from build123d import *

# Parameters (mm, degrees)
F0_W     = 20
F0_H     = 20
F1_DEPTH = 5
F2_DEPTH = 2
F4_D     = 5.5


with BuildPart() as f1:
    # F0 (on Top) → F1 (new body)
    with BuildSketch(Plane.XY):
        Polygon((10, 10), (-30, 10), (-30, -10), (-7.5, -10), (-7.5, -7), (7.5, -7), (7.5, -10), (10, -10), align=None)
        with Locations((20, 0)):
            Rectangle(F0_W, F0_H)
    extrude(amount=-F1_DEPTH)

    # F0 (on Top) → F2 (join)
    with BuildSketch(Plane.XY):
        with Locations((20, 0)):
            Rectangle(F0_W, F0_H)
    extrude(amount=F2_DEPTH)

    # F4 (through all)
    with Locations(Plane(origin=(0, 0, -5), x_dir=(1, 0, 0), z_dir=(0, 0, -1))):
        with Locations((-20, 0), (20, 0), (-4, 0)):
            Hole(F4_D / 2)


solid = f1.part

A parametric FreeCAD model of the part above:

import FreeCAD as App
import Part
import Sketcher
from FreeCAD import Vector
Q = App.Units.Quantity

doc = App.newDocument("Part")
body = doc.addObject("PartDesign::Body", "Body")

sketch1 = doc.addObject("Sketcher::SketchObject", "Sketch")
body.addObject(sketch1)
sketch1.AttachmentSupport = (doc.XY_Plane, [""])
sketch1.MapMode = "FlatFace"
sketch1.addGeometry([
    Part.LineSegment(Vector(-30, 10, 0), Vector(-30, -10, 0)),
    Part.LineSegment(Vector(-30, -10, 0), Vector(-7.5, -10, 0)),
    Part.LineSegment(Vector(-7.5, -10, 0), Vector(-7.5, -7, 0)),
    Part.LineSegment(Vector(-7.5, -7, 0), Vector(7.5, -7, 0)),
    Part.LineSegment(Vector(7.5, -7, 0), Vector(7.5, -10, 0)),
    Part.LineSegment(Vector(7.5, -10, 0), Vector(30, -10, 0)),
    Part.LineSegment(Vector(30, -10, 0), Vector(30, 10, 0)),
    Part.LineSegment(Vector(30, 10, 0), Vector(-30, 10, 0)),
], False)
sketch1.addConstraint([
    Sketcher.Constraint("Coincident", 0, 2, 1, 1),
    Sketcher.Constraint("Coincident", 1, 2, 2, 1),
    Sketcher.Constraint("Coincident", 2, 2, 3, 1),
    Sketcher.Constraint("Coincident", 3, 2, 4, 1),
    Sketcher.Constraint("Coincident", 4, 2, 5, 1),
    Sketcher.Constraint("Coincident", 5, 2, 6, 1),
    Sketcher.Constraint("Coincident", 6, 2, 7, 1),
    Sketcher.Constraint("Coincident", 7, 2, 0, 1),
    Sketcher.Constraint("Vertical", 0),
    Sketcher.Constraint("Horizontal", 1),
    Sketcher.Constraint("Vertical", 2),
    Sketcher.Constraint("Horizontal", 3),
    Sketcher.Constraint("Vertical", 4),
    Sketcher.Constraint("Horizontal", 5),
    Sketcher.Constraint("Vertical", 6),
    Sketcher.Constraint("Horizontal", 7),
    Sketcher.Constraint("Symmetric", 0, 2, 6, 2, -1, 1),
    Sketcher.Constraint("Symmetric", 1, 2, 4, 2, -2),
    Sketcher.Constraint("DistanceX", 3, 1, 3, 2, Q("15 mm")),
    Sketcher.Constraint("DistanceX", 7, 2, 7, 1, Q("60 mm")),
    Sketcher.Constraint("DistanceY", 0, 2, 0, 1, Q("20 mm")),
    Sketcher.Constraint("DistanceY", 2, 1, 2, 2, Q("3 mm")),
])
pad1 = doc.addObject("PartDesign::Pad", "Pad")
body.addObject(pad1)
pad1.Profile = sketch1
pad1.Length = 5
pad1.Reversed = True

sketch2 = doc.addObject("Sketcher::SketchObject", "Sketch001")
body.addObject(sketch2)
sketch2.AttachmentSupport = (doc.XY_Plane, [""])
sketch2.MapMode = "FlatFace"
sketch2.addGeometry([
    Part.LineSegment(Vector(10, 10, 0), Vector(10, -10, 0)),
    Part.LineSegment(Vector(10, -10, 0), Vector(30, -10, 0)),
    Part.LineSegment(Vector(30, -10, 0), Vector(30, 10, 0)),
    Part.LineSegment(Vector(30, 10, 0), Vector(10, 10, 0)),
], False)
sketch2.addConstraint([
    Sketcher.Constraint("Coincident", 0, 2, 1, 1),
    Sketcher.Constraint("Coincident", 1, 2, 2, 1),
    Sketcher.Constraint("Coincident", 2, 2, 3, 1),
    Sketcher.Constraint("Coincident", 3, 2, 0, 1),
    Sketcher.Constraint("Vertical", 0),
    Sketcher.Constraint("Horizontal", 1),
    Sketcher.Constraint("Vertical", 2),
    Sketcher.Constraint("Horizontal", 3),
    Sketcher.Constraint("Equal", 3, 0),
    Sketcher.Constraint("DistanceX", 1, 1, 1, 2, Q("20 mm")),
    Sketcher.Constraint("DistanceX", -1, 1, 0, 2, Q("10 mm")),
    Sketcher.Constraint("DistanceY", 0, 2, -1, 1, Q("10 mm")),
])
pad2 = doc.addObject("PartDesign::Pad", "Pad001")
body.addObject(pad2)
pad2.Profile = sketch2
pad2.Length = 2

sketch3 = doc.addObject("Sketcher::SketchObject", "Sketch002")
body.addObject(sketch3)
sketch3.AttachmentSupport = (doc.XY_Plane, [""])
sketch3.MapMode = "FlatFace"
sketch3.AttachmentOffset = App.Placement(Vector(0, 0, -5), App.Rotation())
sketch3.addGeometry([
    Part.Circle(Vector(-20, 0, 0), Vector(0, 0, 1), 2.8),
    Part.Circle(Vector(20, 0, 0), Vector(0, 0, 1), 2.8),
    Part.Circle(Vector(-4, 0, 0), Vector(0, 0, 1), 2.8),
], False)
sketch3.addConstraint([
    Sketcher.Constraint("Equal", 0, 1),
    Sketcher.Constraint("Equal", 1, 2),
    Sketcher.Constraint("Symmetric", 0, 3, 1, 3, -1, 1),
    Sketcher.Constraint("PointOnObject", 0, 3, -1),
    Sketcher.Constraint("PointOnObject", 2, 3, -1),
    Sketcher.Constraint("Diameter", 0, Q("5.5 mm")),
    Sketcher.Constraint("DistanceX", 0, 3, -1, 1, Q("20 mm")),
    Sketcher.Constraint("DistanceX", 2, 3, -1, 1, Q("4 mm")),
])
doc.recompute()
hole = doc.addObject("PartDesign::Hole", "Hole")
body.addObject(hole)
hole.Profile = sketch3
hole.ThreadType = "None"
hole.Diameter = 5.5
hole.DepthType = "ThroughAll"
hole.Reversed = True

doc.recompute()
